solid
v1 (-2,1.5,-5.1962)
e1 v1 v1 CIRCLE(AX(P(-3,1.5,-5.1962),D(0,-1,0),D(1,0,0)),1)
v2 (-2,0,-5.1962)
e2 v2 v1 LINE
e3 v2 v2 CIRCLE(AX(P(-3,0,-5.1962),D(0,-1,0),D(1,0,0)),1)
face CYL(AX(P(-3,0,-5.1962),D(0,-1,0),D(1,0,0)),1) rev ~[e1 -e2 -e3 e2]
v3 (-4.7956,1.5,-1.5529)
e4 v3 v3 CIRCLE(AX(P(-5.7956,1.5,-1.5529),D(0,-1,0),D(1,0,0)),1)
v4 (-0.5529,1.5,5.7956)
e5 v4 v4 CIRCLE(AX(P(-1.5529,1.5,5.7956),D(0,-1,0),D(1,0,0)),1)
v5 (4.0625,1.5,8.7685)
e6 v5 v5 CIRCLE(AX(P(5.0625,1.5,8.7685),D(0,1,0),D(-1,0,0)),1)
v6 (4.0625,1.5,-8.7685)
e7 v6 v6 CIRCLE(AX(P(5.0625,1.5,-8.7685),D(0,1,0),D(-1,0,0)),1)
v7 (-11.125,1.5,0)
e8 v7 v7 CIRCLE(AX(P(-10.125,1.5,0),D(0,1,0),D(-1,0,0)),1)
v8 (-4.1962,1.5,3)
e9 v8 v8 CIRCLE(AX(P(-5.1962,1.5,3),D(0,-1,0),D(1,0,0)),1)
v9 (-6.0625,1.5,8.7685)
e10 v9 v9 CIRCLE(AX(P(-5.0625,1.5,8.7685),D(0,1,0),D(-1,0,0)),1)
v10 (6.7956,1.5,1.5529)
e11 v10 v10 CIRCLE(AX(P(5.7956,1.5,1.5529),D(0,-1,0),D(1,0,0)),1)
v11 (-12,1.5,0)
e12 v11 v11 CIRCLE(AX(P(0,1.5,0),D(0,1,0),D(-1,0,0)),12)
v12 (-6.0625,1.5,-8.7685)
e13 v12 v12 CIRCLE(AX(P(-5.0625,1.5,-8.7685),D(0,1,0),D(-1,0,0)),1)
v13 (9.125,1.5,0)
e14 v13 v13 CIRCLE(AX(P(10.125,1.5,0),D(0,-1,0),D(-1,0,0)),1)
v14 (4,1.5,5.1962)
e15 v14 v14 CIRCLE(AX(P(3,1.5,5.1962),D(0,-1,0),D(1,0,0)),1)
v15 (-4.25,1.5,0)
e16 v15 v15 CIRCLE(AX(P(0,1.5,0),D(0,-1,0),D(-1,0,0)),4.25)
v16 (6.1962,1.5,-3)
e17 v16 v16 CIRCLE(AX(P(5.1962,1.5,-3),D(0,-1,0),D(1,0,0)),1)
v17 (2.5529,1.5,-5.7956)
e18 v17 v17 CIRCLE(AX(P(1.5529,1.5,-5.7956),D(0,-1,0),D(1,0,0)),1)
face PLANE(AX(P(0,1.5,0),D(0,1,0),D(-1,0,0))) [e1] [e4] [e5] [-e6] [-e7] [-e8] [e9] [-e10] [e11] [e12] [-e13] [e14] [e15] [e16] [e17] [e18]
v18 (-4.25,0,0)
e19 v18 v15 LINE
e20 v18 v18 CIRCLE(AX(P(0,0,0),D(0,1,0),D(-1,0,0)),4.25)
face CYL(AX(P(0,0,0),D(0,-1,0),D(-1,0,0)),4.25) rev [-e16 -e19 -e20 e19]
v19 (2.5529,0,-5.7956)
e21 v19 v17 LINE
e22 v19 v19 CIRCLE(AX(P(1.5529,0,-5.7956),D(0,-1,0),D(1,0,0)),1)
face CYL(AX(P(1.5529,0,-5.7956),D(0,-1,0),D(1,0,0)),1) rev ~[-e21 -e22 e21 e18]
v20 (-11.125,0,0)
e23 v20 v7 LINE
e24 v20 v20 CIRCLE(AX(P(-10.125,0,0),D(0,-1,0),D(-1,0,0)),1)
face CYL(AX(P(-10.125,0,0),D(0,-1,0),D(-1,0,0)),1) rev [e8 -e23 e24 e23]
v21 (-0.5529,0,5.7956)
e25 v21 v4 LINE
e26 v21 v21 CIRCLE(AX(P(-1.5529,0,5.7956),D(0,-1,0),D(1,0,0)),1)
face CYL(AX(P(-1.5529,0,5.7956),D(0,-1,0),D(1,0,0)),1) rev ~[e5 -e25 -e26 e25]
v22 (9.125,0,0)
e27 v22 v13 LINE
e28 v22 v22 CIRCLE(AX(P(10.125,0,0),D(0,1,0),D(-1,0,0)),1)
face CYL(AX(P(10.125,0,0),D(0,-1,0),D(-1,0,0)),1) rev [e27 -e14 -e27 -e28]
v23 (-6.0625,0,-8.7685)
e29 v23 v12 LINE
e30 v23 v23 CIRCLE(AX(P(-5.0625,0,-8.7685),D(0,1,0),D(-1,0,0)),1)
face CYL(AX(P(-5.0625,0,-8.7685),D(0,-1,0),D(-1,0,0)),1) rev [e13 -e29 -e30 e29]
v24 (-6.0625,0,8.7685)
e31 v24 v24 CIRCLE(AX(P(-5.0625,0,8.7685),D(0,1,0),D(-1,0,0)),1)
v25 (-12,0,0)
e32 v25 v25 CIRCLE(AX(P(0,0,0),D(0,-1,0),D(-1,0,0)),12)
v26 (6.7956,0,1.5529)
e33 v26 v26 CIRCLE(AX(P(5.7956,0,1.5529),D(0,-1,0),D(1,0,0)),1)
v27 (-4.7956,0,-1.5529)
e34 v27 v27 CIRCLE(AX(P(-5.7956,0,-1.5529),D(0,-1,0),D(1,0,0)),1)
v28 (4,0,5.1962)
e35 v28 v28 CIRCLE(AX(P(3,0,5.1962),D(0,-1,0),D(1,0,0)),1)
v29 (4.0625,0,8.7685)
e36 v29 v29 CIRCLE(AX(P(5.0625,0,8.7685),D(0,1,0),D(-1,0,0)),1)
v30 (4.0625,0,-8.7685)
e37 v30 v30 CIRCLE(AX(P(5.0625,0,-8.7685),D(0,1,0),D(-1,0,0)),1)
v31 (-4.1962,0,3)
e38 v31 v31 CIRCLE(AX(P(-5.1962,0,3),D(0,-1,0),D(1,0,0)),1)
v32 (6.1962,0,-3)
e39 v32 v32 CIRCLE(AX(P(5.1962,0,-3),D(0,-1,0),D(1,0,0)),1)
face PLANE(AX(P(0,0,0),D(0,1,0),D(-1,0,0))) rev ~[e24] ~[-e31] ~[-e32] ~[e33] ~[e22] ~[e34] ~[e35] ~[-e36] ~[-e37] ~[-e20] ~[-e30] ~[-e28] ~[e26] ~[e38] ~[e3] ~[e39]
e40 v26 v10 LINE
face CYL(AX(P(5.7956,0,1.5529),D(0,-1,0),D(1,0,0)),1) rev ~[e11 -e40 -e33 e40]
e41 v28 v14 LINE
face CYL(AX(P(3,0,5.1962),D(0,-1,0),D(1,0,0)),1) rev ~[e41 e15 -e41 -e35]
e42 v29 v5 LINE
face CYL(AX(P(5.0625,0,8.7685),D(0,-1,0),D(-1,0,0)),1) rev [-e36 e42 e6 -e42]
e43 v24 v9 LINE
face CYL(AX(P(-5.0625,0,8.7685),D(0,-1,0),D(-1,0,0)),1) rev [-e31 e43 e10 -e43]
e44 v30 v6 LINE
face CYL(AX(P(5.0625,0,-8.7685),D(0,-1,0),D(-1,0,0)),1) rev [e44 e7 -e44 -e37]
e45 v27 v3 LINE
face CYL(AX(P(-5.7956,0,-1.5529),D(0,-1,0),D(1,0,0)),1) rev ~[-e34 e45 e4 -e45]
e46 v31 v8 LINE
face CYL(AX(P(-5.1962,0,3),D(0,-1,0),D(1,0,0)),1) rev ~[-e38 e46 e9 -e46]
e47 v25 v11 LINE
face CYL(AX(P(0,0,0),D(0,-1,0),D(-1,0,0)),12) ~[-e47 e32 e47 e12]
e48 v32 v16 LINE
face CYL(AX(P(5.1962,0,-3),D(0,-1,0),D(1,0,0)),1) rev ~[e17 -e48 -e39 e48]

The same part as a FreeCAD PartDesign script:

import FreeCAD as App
import Part
import Sketcher
from FreeCAD import Vector
Q = App.Units.Quantity

doc = App.newDocument("Part")
body = doc.addObject("PartDesign::Body", "Body")

sketch1 = doc.addObject("Sketcher::SketchObject", "Sketch")
body.addObject(sketch1)
sketch1.AttachmentSupport = (doc.XZ_Plane, [""])
sketch1.MapMode = "FlatFace"
sketch1.addGeometry(Part.Circle(Vector(0, 0, 0), Vector(0, 0, 1), 12), False)
sketch1.addGeometry(Part.Circle(Vector(-10.125, 0, 0), Vector(0, 0, 1), 1), False)
sketch1.addGeometry(Part.Circle(Vector(0, 0, 0), Vector(0, 0, 1), 4.25), False)
sketch1.addGeometry(Part.Circle(Vector(10.125, 0, 0), Vector(0, 0, 1), 1), False)
sketch1.addGeometry(Part.Circle(Vector(5.0625, 8.7685, 0), Vector(0, 0, 1), 1), False)
sketch1.addGeometry(Part.Circle(Vector(-5.0625, 8.7685, 0), Vector(0, 0, 1), 1), False)
sketch1.addGeometry(Part.Circle(Vector(-5.0625, -8.7685, 0), Vector(0, 0, 1), 1), False)
sketch1.addGeometry(Part.Circle(Vector(5.0625, -8.7685, 0), Vector(0, 0, 1), 1), False)
sketch1.addConstraint(Sketcher.Constraint("Coincident", 0, 3, -1, 1))
sketch1.addConstraint(Sketcher.Constraint("Coincident", 2, 3, -1, 1))
sketch1.addConstraint(Sketcher.Constraint("Equal", 1, 3))
sketch1.addConstraint(Sketcher.Constraint("Equal", 3, 4))
sketch1.addConstraint(Sketcher.Constraint("Equal", 4, 5))
sketch1.addConstraint(Sketcher.Constraint("Equal", 5, 6))
sketch1.addConstraint(Sketcher.Constraint("Equal", 6, 7))
sketch1.addConstraint(Sketcher.Constraint("Symmetric", 1, 3, 3, 3, -1, 1))
sketch1.addConstraint(Sketcher.Constraint("Symmetric", 4, 3, 6, 3, -1, 1))
sketch1.addConstraint(Sketcher.Constraint("Symmetric", 5, 3, 7, 3, -1, 1))
sketch1.addConstraint(Sketcher.Constraint("Symmetric", 4, 3, 5, 3, -2))
sketch1.addConstraint(Sketcher.Constraint("PointOnObject", 1, 3, -1))
sketch1.addConstraint(Sketcher.Constraint("Diameter", 0, Q("24 mm")))
sketch1.addConstraint(Sketcher.Constraint("Diameter", 1, Q("2 mm")))
sketch1.addConstraint(Sketcher.Constraint("Diameter", 2, Q("8.5 mm")))
sketch1.addConstraint(Sketcher.Constraint("DistanceX", 1, 3, 3, 3, Q("20.25 mm")))
sketch1.addConstraint(Sketcher.Constraint("DistanceX", 5, 3, 4, 3, Q("10.125 mm")))
sketch1.addConstraint(Sketcher.Constraint("DistanceY", 6, 3, 5, 3, Q("17.537 mm")))
pad1 = doc.addObject("PartDesign::Pad", "Pad")
body.addObject(pad1)
pad1.Profile = sketch1
pad1.Length = 1.5
pad1.Reversed = True

sketch2 = doc.addObject("Sketcher::SketchObject", "Sketch001")
body.addObject(sketch2)
sketch2.AttachmentSupport = (doc.XZ_Plane, [""])
sketch2.MapMode = "FlatFace"
sketch2.addGeometry(Part.Circle(Vector(5.1962, -3, 0), Vector(0, 0, 1), 1), False)
sketch2.addGeometry(Part.Circle(Vector(5.7956, 1.5529, 0), Vector(0, 0, 1), 1), False)
sketch2.addGeometry(Part.Circle(Vector(3, 5.1962, 0), Vector(0, 0, 1), 1), False)
sketch2.addGeometry(Part.Circle(Vector(-5.7956, -1.5529, 0), Vector(0, 0, 1), 1), False)
sketch2.addGeometry(Part.Circle(Vector(-3, -5.1962, 0), Vector(0, 0, 1), 1), False)
sketch2.addGeometry(Part.Circle(Vector(1.5529, -5.7956, 0), Vector(0, 0, 1), 1), False)
sketch2.addGeometry(Part.Circle(Vector(-5.1962, 3, 0), Vector(0, 0, 1), 1), False)
sketch2.addGeometry(Part.Circle(Vector(-1.5529, 5.7956, 0), Vector(0, 0, 1), 1), False)
sketch2.addConstraint(Sketcher.Constraint("Equal", 0, 1))
sketch2.addConstraint(Sketcher.Constraint("Equal", 1, 2))
sketch2.addConstraint(Sketcher.Constraint("Equal", 2, 3))
sketch2.addConstraint(Sketcher.Constraint("Equal", 3, 4))
sketch2.addConstraint(Sketcher.Constraint("Equal", 4, 5))
sketch2.addConstraint(Sketcher.Constraint("Equal", 5, 6))
sketch2.addConstraint(Sketcher.Constraint("Equal", 6, 7))
sketch2.addConstraint(Sketcher.Constraint("Symmetric", 1, 3, 3, 3, -1, 1))
sketch2.addConstraint(Sketcher.Constraint("Symmetric", 2, 3, 4, 3, -1, 1))
sketch2.addConstraint(Sketcher.Constraint("Symmetric", 0, 3, 6, 3, -1, 1))
sketch2.addConstraint(Sketcher.Constraint("Symmetric", 5, 3, 7, 3, -1, 1))
sketch2.addConstraint(Sketcher.Constraint("Diameter", 0, Q("2 mm")))
sketch2.addConstraint(Sketcher.Constraint("DistanceY", 0, 3, -1, 1, Q("3 mm")))
sketch2.addConstraint(Sketcher.Constraint("DistanceX", -1, 1, 2, 3, Q("3 mm")))
sketch2.addConstraint(Sketcher.Constraint("DistanceY", -1, 1, 1, 3, Q("1.553 mm")))
sketch2.addConstraint(Sketcher.Constraint("DistanceX", -1, 1, 5, 3, Q("1.553 mm")))
sketch2.addConstraint(Sketcher.Constraint("DistanceY", 3, 3, 2, 3, Q("6.749 mm")))
sketch2.addConstraint(Sketcher.Constraint("DistanceX", 6, 3, 5, 3, Q("6.749 mm")))
sketch2.addConstraint(Sketcher.Constraint("DistanceX", -1, 1, 1, 3, Q("5.7956 mm")))
sketch2.addConstraint(Sketcher.Constraint("DistanceY", 5, 3, -1, 1, Q("5.7956 mm")))
pocket1 = doc.addObject("PartDesign::Pocket", "Pocket")
body.addObject(pocket1)
pocket1.Profile = sketch2
pocket1.Length = 1.5

doc.recompute()
